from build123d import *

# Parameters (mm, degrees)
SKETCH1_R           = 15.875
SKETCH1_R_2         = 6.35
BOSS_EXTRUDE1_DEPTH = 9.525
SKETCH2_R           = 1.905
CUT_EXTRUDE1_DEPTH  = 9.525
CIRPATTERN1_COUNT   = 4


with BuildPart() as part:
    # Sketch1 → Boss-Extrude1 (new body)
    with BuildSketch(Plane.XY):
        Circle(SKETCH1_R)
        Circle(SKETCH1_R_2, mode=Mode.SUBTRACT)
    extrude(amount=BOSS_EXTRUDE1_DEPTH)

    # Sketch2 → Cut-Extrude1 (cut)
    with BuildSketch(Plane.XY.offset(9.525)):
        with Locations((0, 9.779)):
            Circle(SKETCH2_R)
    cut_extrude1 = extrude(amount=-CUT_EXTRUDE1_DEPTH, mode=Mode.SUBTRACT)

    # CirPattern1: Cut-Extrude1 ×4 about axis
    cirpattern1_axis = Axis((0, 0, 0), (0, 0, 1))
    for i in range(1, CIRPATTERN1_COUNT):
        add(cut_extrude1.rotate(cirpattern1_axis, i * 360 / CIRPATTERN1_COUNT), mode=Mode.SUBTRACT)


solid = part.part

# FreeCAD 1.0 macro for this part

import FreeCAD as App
import Part
import Sketcher
Q = App.Units.Quantity

doc = App.newDocument("Part")
body = doc.addObject("PartDesign::Body", "Body")

# Sketch on XY plane
sketch1 = body.newObject("Sketcher::SketchObject", "Sketch")
sketch1.AttachmentSupport = (doc.getObject("XY_Plane"), [""])
sketch1.MapMode = "FlatFace"
sketch1.addGeometry(Part.Circle(App.Vector(0, 0, 0), App.Vector(0, 0, 1), 16), False)
sketch1.addGeometry(Part.Circle(App.Vector(0, 0, 0), App.Vector(0, 0, 1), 6), False)
sketch1.addConstraint(Sketcher.Constraint("Coincident", 0, 3, -1, 1))
sketch1.addConstraint(Sketcher.Constraint("Coincident", 1, 3, -1, 1))
sketch1.addConstraint(Sketcher.Constraint("Diameter", 1, Q("0.5 in")))
sketch1.addConstraint(Sketcher.Constraint("Diameter", 0, Q("1.25 in")))
pad1 = body.newObject("PartDesign::Pad", "Pad")
pad1.Profile = sketch1
pad1.Length = Q("0.375 in")

# Sketch on XY plane
sketch2 = body.newObject("Sketcher::SketchObject", "Sketch001")
sketch2.AttachmentSupport = (doc.getObject("XY_Plane"), [""])
sketch2.MapMode = "FlatFace"
sketch2.AttachmentOffset = App.Placement(App.Vector(0, 0, 0.375 * 25.4), App.Rotation())
sketch2.addGeometry(Part.Circle(App.Vector(0, 9.8, 0), App.Vector(0, 0, 1), 1.9), False)
sketch2.addConstraint(Sketcher.Constraint("PointOnObject", 0, 3, -2))
sketch2.addConstraint(Sketcher.Constraint("Diameter", 0, Q("0.15 in")))
sketch2.addConstraint(Sketcher.Constraint("DistanceY", -1, 1, 0, 3, Q("0.385 in")))
pocket1 = body.newObject("PartDesign::Pocket", "Pocket")
pocket1.Profile = sketch2
pocket1.Length = Q("0.375 in")
doc.recompute()

polarpattern = body.newObject("PartDesign::PolarPattern", "PolarPattern")
polarpattern.Originals = [pocket1]
polarpattern.Axis = (doc.getObject("Z_Axis"), [""])
polarpattern.Angle = 360
polarpattern.Occurrences = 4
body.Tip = polarpattern

doc.recompute()
